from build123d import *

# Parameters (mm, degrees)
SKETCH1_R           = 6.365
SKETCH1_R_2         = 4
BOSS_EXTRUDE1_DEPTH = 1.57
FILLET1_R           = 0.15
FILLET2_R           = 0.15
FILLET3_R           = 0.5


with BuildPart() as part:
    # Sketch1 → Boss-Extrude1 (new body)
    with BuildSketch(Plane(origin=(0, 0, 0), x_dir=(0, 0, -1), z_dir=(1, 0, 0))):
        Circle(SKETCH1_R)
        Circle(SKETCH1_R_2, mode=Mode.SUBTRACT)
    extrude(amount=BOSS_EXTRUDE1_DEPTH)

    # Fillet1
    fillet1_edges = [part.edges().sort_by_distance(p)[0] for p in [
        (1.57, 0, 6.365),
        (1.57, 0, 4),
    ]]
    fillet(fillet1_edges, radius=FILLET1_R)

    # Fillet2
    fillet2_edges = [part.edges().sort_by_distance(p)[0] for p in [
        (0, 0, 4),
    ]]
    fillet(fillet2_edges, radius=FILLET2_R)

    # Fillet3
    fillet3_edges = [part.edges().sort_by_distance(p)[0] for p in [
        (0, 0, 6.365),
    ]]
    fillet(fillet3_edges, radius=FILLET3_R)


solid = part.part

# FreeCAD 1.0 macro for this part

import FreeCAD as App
import Part
import Sketcher

V = App.Vector


def edges_at(feature, points):
    """Names of the edges that pass closest to the given points."""
    edges = feature.Shape.Edges
    near = lambda p: min(range(len(edges)), key=lambda i: edges[i].distToShape(Part.Vertex(*p))[0])
    return sorted({f"Edge{near(p) + 1}" for p in points})

doc = App.newDocument("Part")
params = doc.addObject("Spreadsheet::Sheet", "Params")
for row, (alias, value) in enumerate([
    ("sketch1_diameter", "8 mm"),
    ("sketch1_diameter2", "12.73 mm"),
    ("pad1_length", "1.57 mm"),
    ("fillet_radius", "0.15 mm"),
    ("fillet2_radius", "0.15 mm"),
    ("fillet3_radius", "0.5 mm"),
], start=1):
    params.set(f"A{row}", alias)
    params.set(f"B{row}", "=" + value)
    params.setAlias(f"B{row}", alias)

body = doc.addObject("PartDesign::Body", "Body")

# Sketch on YZ plane
sketch1 = body.newObject("Sketcher::SketchObject", "Sketch")
sketch1.AttachmentSupport = (doc.getObject("YZ_Plane"), [""])
sketch1.MapMode = "FlatFace"
sketch1.addGeometry([
    Part.Circle(V(0, 0, 0), V(0, 0, 1), 6.4),
    Part.Circle(V(0, 0, 0), V(0, 0, 1), 4),
], False)
sketch1.addConstraint([
    Sketcher.Constraint("Coincident", 0, 3, -1, 1),
    Sketcher.Constraint("Coincident", 1, 3, -1, 1),
    Sketcher.Constraint("Diameter", 1, 8.0),
    Sketcher.Constraint("Diameter", 0, 12.73),
])
sketch1.setExpression("Constraints[2]", "Params.sketch1_diameter")
sketch1.setExpression("Constraints[3]", "Params.sketch1_diameter2")
pad1 = body.newObject("PartDesign::Pad", "Pad")
pad1.Profile = sketch1
pad1.setExpression("Length", "Params.pad1_length")
doc.recompute()

fillet = body.newObject("PartDesign::Fillet", "Fillet")
fillet.Base = (pad1, edges_at(pad1, [(1.57, 0, 6.365), (1.57, 0, 4)]))
fillet.setExpression("Radius", "Params.fillet_radius")
doc.recompute()

fillet2 = body.newObject("PartDesign::Fillet", "Fillet001")
fillet2.Base = (fillet, edges_at(fillet, [(0, 0, 4)]))
fillet2.setExpression("Radius", "Params.fillet2_radius")
doc.recompute()

fillet3 = body.newObject("PartDesign::Fillet", "Fillet002")
fillet3.Base = (fillet2, edges_at(fillet2, [(0, 0, 6.365)]))
fillet3.setExpression("Radius", "Params.fillet3_radius")

doc.recompute()
